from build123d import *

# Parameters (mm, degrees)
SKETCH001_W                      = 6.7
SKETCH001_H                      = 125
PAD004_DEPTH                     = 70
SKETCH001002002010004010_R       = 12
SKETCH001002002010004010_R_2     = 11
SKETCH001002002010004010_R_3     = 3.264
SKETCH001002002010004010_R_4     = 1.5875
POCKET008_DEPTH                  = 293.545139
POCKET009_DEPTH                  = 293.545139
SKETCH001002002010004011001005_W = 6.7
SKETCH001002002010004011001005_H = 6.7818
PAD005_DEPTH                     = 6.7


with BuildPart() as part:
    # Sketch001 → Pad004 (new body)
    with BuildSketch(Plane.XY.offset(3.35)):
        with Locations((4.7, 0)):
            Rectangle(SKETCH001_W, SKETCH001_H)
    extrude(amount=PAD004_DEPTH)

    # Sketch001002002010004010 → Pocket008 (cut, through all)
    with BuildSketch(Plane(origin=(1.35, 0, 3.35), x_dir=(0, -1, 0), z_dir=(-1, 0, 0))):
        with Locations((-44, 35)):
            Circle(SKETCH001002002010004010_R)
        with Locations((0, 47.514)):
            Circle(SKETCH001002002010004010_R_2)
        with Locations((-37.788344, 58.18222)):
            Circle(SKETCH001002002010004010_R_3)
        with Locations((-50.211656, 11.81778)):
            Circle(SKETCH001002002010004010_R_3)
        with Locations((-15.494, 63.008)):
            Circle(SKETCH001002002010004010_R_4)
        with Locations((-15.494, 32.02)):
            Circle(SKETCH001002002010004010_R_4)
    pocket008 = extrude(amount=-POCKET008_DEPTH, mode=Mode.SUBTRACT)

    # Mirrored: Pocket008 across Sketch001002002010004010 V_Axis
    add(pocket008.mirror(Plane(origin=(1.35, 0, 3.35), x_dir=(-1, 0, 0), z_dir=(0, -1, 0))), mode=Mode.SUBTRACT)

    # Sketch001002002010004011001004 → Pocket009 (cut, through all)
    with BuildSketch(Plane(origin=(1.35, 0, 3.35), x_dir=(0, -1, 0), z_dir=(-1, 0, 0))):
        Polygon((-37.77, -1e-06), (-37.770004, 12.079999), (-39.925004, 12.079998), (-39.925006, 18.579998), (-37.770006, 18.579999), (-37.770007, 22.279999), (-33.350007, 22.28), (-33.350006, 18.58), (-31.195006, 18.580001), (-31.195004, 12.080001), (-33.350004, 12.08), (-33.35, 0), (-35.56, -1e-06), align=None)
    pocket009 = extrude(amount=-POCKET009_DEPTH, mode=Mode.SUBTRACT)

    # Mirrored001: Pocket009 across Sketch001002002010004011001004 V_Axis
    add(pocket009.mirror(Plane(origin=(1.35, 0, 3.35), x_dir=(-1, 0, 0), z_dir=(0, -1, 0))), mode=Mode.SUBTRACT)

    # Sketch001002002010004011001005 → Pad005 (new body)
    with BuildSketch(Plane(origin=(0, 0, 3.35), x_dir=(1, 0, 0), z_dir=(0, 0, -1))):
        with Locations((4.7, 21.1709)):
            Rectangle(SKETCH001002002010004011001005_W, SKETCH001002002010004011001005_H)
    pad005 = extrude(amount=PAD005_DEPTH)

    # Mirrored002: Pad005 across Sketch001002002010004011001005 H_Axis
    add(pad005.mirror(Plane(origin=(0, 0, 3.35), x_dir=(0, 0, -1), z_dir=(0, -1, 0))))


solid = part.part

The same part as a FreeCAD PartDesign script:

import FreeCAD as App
import Part
import Sketcher

V = App.Vector
Q = App.Units.Quantity


def add_polygon(sketch, points):
    """Adds a closed chain of lines whose ends are joined by coincident constraints."""
    first, n = sketch.GeometryCount, len(points)
    for a, b in zip(points, points[1:] + points[:1]):
        sketch.addGeometry(Part.LineSegment(App.Vector(*a, 0), App.Vector(*b, 0)), False)
    for i in range(n):
        sketch.addConstraint(Sketcher.Constraint("Coincident", first + i, 2, first + (i + 1) % n, 1))

doc = App.newDocument("Part")
body = doc.addObject("PartDesign::Body", "Body")

# Sketch on XY plane
sketch1 = doc.addObject("Sketcher::SketchObject", "Sketch")
body.addObject(sketch1)
sketch1.AttachmentSupport = (doc.XY_Plane, [""])
sketch1.MapMode = "FlatFace"
sketch1.AttachmentOffset = App.Placement(V(0, 0, 3.35), App.Rotation())
add_polygon(sketch1, [(1.35, 62.5), (1.35, -62.5), (8.05, -62.5), (8.05, 62.5)])  # lines 0-3
sketch1.addConstraint(Sketcher.Constraint("Vertical", 0))
sketch1.addConstraint(Sketcher.Constraint("Horizontal", 1))
sketch1.addConstraint(Sketcher.Constraint("Vertical", 2))
sketch1.addConstraint(Sketcher.Constraint("Horizontal", 3))
sketch1.addConstraint(Sketcher.Constraint("DistanceY", 0, 2, 0, 1, 125.0))
sketch1.addConstraint(Sketcher.Constraint("DistanceX", 1, 1, 1, 2, 6.7))
sketch1.addConstraint(Sketcher.Constraint("DistanceY", 0, 2, -1, 1, 62.5))
sketch1.addConstraint(Sketcher.Constraint("DistanceX", -1, 1, 0, 2, 1.35))
pad1 = doc.addObject("PartDesign::Pad", "Pad")
body.addObject(pad1)
pad1.Profile = sketch1
pad1.Length = 70

# Sketch on YZ plane
sketch2 = doc.addObject("Sketcher::SketchObject", "Sketch001")
body.addObject(sketch2)
sketch2.AttachmentSupport = (doc.YZ_Plane, [""])
sketch2.MapMode = "FlatFace"
sketch2.AttachmentOffset = App.Placement(V(0, 0, 1.35), App.Rotation())
sketch2.addGeometry(Part.Circle(V(44, 38.35, 0), V(0, 0, 1), 12), False)
sketch2.addGeometry(Part.Circle(V(0, 50.864, 0), V(0, 0, 1), 11), False)
sketch2.addGeometry(Part.Circle(V(37.788344, 61.53222, 0), V(0, 0, 1), 3.264), False)
sketch2.addGeometry(Part.Circle(V(50.211656, 15.16778, 0), V(0, 0, 1), 3.264), False)
sketch2.addGeometry(Part.Circle(V(15.494, 66.358, 0), V(0, 0, 1), 1.5875), False)
sketch2.addGeometry(Part.Circle(V(15.494, 35.37, 0), V(0, 0, 1), 1.5875), False)
sketch2.addConstraint(Sketcher.Constraint("Equal", 2, 3))
sketch2.addConstraint(Sketcher.Constraint("Equal", 4, 5))
sketch2.addConstraint(Sketcher.Constraint("PointOnObject", 1, 3, -2))
sketch2.addConstraint(Sketcher.Constraint("Vertical", 4, 3, 5, 3))
sketch2.addConstraint(Sketcher.Constraint("Diameter", 0, 24.0))
sketch2.addConstraint(Sketcher.Constraint("Diameter", 1, 22.0))
sketch2.addConstraint(Sketcher.Constraint("Diameter", 2, 6.528))
sketch2.addConstraint(Sketcher.Constraint("Diameter", 4, 3.175))
sketch2.addConstraint(Sketcher.Constraint("DistanceX", -1, 1, 0, 3, 44.0))
sketch2.addConstraint(Sketcher.Constraint("DistanceY", -1, 1, 0, 3, 38.35))
sketch2.addConstraint(Sketcher.Constraint("DistanceY", -1, 1, 5, 3, 35.37))
sketch2.addConstraint(Sketcher.Constraint("DistanceY", -1, 1, 1, 3, 50.864))
sketch2.addConstraint(Sketcher.Constraint("DistanceX", -1, 1, 4, 3, 15.494))
sketch2.addConstraint(Sketcher.Constraint("DistanceY", -1, 1, 4, 3, 66.358))
sketch2.addConstraint(Sketcher.Constraint("DistanceY", -1, 1, 2, 3, 61.53222))
sketch2.addConstraint(Sketcher.Constraint("DistanceY", -1, 1, 3, 3, 15.16778))
sketch2.addConstraint(Sketcher.Constraint("DistanceX", 2, 3, 3, 3, 12.423312))
sketch2.addConstraint(Sketcher.Constraint("DistanceX", -1, 1, 2, 3, 37.788344))
pocket1 = doc.addObject("PartDesign::Pocket", "Pocket")
body.addObject(pocket1)
pocket1.Profile = sketch2
pocket1.Type = "ThroughAll"
pocket1.Reversed = True
doc.recompute()

mirrored = doc.addObject("PartDesign::Mirrored", "Mirrored")
body.addObject(mirrored)
mirrored.Originals = [pocket1]
mirrored.MirrorPlane = (doc.XZ_Plane, [""])
body.Tip = mirrored

# Sketch on YZ plane
sketch3 = doc.addObject("Sketcher::SketchObject", "Sketch002")
body.addObject(sketch3)
sketch3.AttachmentSupport = (doc.YZ_Plane, [""])
sketch3.MapMode = "FlatFace"
sketch3.AttachmentOffset = App.Placement(V(0, 0, 1.35), App.Rotation())
add_polygon(sketch3, [(37.770004, 15.429999), (37.77, 3.349999), (35.56, 3.349999), (33.35, 3.35), (33.350004, 15.43), (31.195004, 15.430001), (31.195006, 21.930001), (33.350006, 21.93), (33.350007, 25.63), (37.770007, 25.629999), (37.770006, 21.929999), (39.925006, 21.929998), (39.925004, 15.429998)])  # lines 0-12
sketch3.addConstraint(Sketcher.Constraint("Horizontal", 1))
sketch3.addConstraint(Sketcher.Constraint("Horizontal", 2))
sketch3.addConstraint(Sketcher.Constraint("Horizontal", 4))
sketch3.addConstraint(Sketcher.Constraint("Vertical", 5))
sketch3.addConstraint(Sketcher.Constraint("Horizontal", 6))
sketch3.addConstraint(Sketcher.Constraint("Vertical", 7))
sketch3.addConstraint(Sketcher.Constraint("Horizontal", 8))
sketch3.addConstraint(Sketcher.Constraint("Vertical", 9))
sketch3.addConstraint(Sketcher.Constraint("Horizontal", 10))
sketch3.addConstraint(Sketcher.Constraint("Horizontal", 12))
sketch3.addConstraint(Sketcher.Constraint("Parallel", 0, 3))
sketch3.addConstraint(Sketcher.Constraint("Parallel", 3, 11))
sketch3.addConstraint(Sketcher.Constraint("Horizontal", 6, 2, 9, 2))
sketch3.addConstraint(Sketcher.Constraint("Equal", 1, 2))
sketch3.addConstraint(Sketcher.Constraint("Equal", 4, 6))
sketch3.addConstraint(Sketcher.Constraint("Equal", 6, 10))
sketch3.addConstraint(Sketcher.Constraint("Equal", 10, 12))
sketch3.addConstraint(Sketcher.Constraint("Equal", 0, 3))
sketch3.addConstraint(Sketcher.Constraint("Angle", 0, Q("-90.000019 deg")))
sketch3.addConstraint(Sketcher.Constraint("DistanceY", 5, 1, 5, 2, 6.5))
sketch3.addConstraint(Sketcher.Constraint("DistanceY", 7, 1, 7, 2, 3.7))
sketch3.addConstraint(Sketcher.Constraint("DistanceX", 1, 2, 1, 1, 2.21))
sketch3.addConstraint(Sketcher.Constraint("Distance", 0, 12.08))
sketch3.addConstraint(Sketcher.Constraint("DistanceX", 4, 2, 4, 1, 2.155))
sketch3.addConstraint(Sketcher.Constraint("DistanceX", -1, 1, 0, 2, 37.77))
sketch3.addConstraint(Sketcher.Constraint("DistanceY", -1, 1, 0, 2, 3.349999))
pocket2 = doc.addObject("PartDesign::Pocket", "Pocket001")
body.addObject(pocket2)
pocket2.Profile = sketch3
pocket2.Type = "ThroughAll"
pocket2.Reversed = True
doc.recompute()

mirrored2 = doc.addObject("PartDesign::Mirrored", "Mirrored001")
body.addObject(mirrored2)
mirrored2.Originals = [pocket2]
mirrored2.MirrorPlane = (doc.XZ_Plane, [""])
body.Tip = mirrored2

# Sketch on XY plane
sketch4 = doc.addObject("Sketcher::SketchObject", "Sketch003")
body.addObject(sketch4)
sketch4.AttachmentSupport = (doc.XY_Plane, [""])
sketch4.MapMode = "FlatFace"
sketch4.AttachmentOffset = App.Placement(V(0, 0, 3.35), App.Rotation())
add_polygon(sketch4, [(1.35, -24.5618), (1.35, -17.78), (8.05, -17.78), (8.05, -24.5618)])  # lines 0-3
sketch4.addConstraint(Sketcher.Constraint("Vertical", 0))
sketch4.addConstraint(Sketcher.Constraint("Horizontal", 1))
sketch4.addConstraint(Sketcher.Constraint("Vertical", 2))
sketch4.addConstraint(Sketcher.Constraint("Horizontal", 3))
sketch4.addConstraint(Sketcher.Constraint("DistanceX", 1, 1, 1, 2, 6.7))
sketch4.addConstraint(Sketcher.Constraint("DistanceX", -1, 1, 0, 2, 1.35))
sketch4.addConstraint(Sketcher.Constraint("DistanceY", 0, 2, -1, 1, 17.78))
sketch4.addConstraint(Sketcher.Constraint("DistanceY", 0, 1, 0, 2, 6.7818))
pad2 = doc.addObject("PartDesign::Pad", "Pad001")
body.addObject(pad2)
pad2.Profile = sketch4
pad2.Length = 6.7
pad2.Reversed = True
doc.recompute()

mirrored3 = doc.addObject("PartDesign::Mirrored", "Mirrored002")
body.addObject(mirrored3)
mirrored3.Originals = [pad2]
mirrored3.MirrorPlane = (doc.XZ_Plane, [""])
body.Tip = mirrored3

doc.recompute()
